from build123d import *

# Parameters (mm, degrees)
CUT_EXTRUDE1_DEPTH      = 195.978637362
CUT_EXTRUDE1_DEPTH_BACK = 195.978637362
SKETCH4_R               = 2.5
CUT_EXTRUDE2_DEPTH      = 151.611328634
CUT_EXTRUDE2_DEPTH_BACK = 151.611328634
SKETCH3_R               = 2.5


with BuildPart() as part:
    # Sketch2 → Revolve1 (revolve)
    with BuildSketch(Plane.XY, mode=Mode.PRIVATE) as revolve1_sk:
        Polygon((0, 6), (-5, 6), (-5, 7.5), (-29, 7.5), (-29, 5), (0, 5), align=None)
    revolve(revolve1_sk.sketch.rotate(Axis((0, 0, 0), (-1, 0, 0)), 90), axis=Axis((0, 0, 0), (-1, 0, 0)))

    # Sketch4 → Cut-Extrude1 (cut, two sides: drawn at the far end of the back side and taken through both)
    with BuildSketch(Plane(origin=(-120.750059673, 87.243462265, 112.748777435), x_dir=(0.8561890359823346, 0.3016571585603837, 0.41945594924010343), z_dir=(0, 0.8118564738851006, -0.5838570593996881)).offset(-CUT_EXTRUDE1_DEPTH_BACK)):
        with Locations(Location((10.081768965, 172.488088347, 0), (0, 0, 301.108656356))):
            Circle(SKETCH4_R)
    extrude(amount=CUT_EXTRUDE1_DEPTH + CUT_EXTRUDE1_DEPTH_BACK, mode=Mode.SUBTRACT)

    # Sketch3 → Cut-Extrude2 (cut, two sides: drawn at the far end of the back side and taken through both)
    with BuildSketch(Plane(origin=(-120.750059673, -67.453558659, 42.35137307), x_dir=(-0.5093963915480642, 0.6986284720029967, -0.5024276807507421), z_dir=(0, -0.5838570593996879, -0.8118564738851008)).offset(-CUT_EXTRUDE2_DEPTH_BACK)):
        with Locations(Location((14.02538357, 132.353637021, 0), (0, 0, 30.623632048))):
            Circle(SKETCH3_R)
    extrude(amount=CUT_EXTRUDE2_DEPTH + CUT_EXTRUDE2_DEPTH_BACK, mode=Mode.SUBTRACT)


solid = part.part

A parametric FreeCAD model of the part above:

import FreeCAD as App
import Part
import Sketcher

V = App.Vector


def add_polygon(sketch, points):
    """Adds a closed chain of lines whose ends are joined by coincident constraints."""
    first, n = sketch.GeometryCount, len(points)
    for a, b in zip(points, points[1:] + points[:1]):
        sketch.addGeometry(Part.LineSegment(App.Vector(*a, 0), App.Vector(*b, 0)), False)
    for i in range(n):
        sketch.addConstraint(Sketcher.Constraint("Coincident", first + i, 2, first + (i + 1) % n, 1))

doc = App.newDocument("Part")
body = doc.addObject("PartDesign::Body", "Body")

# Sketch on XY plane
sketch1 = body.newObject("Sketcher::SketchObject", "Sketch")
sketch1.AttachmentSupport = (doc.getObject("XY_Plane"), [""])
sketch1.MapMode = "FlatFace"
add_polygon(sketch1, [(0, 6), (-5, 6), (-5, 7.5), (-29, 7.5), (-29, 5), (0, 5)])  # lines 0-5
sketch1.addConstraint([
    Sketcher.Constraint("Horizontal", 0),
    Sketcher.Constraint("Vertical", 1),
    Sketcher.Constraint("Horizontal", 2),
    Sketcher.Constraint("Vertical", 3),
    Sketcher.Constraint("Horizontal", 4),
    Sketcher.Constraint("Vertical", 5),
    Sketcher.Constraint("PointOnObject", 4, 2, -2),
    Sketcher.Constraint("DistanceX", 0, 2, 0, 1, 5.0),
    Sketcher.Constraint("DistanceX", 2, 2, 2, 1, 24.0),
    Sketcher.Constraint("DistanceY", 5, 1, 5, 2, 1.0),
    Sketcher.Constraint("DistanceY", 1, 1, 1, 2, 1.5),
    Sketcher.Constraint("DistanceY", -1, 1, 0, 2, 6.0),
])
revolution = body.newObject("PartDesign::Revolution", "Revolution")
revolution.Profile = sketch1
revolution.ReferenceAxis = (sketch1, ["H_Axis"])
revolution.Angle = 360

# Sketch on an angled plane
sketch2 = body.newObject("Sketcher::SketchObject", "Sketch001")
sketch2.Placement = App.Placement(V(-120.75006, 87.243462, 112.748778), App.Rotation(V(0.856189036, 0.301657159, 0.419455949), V(0.516662689, -0.499892013, -0.695102612), V(0, 0.811856474, -0.583857059), "ZXY"))
sketch2.addGeometry(Part.Circle(V(10.1, 172.5, 0), V(0, 0, 1), 2.5), False)
sketch2.addConstraint([
    Sketcher.Constraint("Diameter", 0, 5.0),
    Sketcher.Constraint("DistanceX", -1, 1, 0, 3, 10.081769),
    Sketcher.Constraint("DistanceY", -1, 1, 0, 3, 172.488088),
])
pocket1 = body.newObject("PartDesign::Pocket", "Pocket")
pocket1.Profile = sketch2
pocket1.Type = "ThroughAll"
pocket1.Midplane = True

# Sketch on an angled plane
sketch3 = body.newObject("Sketcher::SketchObject", "Sketch002")
sketch3.Placement = App.Placement(V(-120.75006, -67.453559, 42.351373), App.Rotation(V(-0.509396392, 0.698628472, -0.502427681), V(0.860531996, 0.413556759, -0.297414679), V(0, -0.583857059, -0.811856474), "ZXY"))
sketch3.addGeometry(Part.Circle(V(14, 132.4, 0), V(0, 0, 1), 2.5), False)
sketch3.addConstraint([
    Sketcher.Constraint("Diameter", 0, 5.0),
    Sketcher.Constraint("DistanceX", -1, 1, 0, 3, 14.025384),
    Sketcher.Constraint("DistanceY", -1, 1, 0, 3, 132.353637),
])
pocket2 = body.newObject("PartDesign::Pocket", "Pocket001")
pocket2.Profile = sketch3
pocket2.Type = "ThroughAll"
pocket2.Midplane = True

doc.recompute()
